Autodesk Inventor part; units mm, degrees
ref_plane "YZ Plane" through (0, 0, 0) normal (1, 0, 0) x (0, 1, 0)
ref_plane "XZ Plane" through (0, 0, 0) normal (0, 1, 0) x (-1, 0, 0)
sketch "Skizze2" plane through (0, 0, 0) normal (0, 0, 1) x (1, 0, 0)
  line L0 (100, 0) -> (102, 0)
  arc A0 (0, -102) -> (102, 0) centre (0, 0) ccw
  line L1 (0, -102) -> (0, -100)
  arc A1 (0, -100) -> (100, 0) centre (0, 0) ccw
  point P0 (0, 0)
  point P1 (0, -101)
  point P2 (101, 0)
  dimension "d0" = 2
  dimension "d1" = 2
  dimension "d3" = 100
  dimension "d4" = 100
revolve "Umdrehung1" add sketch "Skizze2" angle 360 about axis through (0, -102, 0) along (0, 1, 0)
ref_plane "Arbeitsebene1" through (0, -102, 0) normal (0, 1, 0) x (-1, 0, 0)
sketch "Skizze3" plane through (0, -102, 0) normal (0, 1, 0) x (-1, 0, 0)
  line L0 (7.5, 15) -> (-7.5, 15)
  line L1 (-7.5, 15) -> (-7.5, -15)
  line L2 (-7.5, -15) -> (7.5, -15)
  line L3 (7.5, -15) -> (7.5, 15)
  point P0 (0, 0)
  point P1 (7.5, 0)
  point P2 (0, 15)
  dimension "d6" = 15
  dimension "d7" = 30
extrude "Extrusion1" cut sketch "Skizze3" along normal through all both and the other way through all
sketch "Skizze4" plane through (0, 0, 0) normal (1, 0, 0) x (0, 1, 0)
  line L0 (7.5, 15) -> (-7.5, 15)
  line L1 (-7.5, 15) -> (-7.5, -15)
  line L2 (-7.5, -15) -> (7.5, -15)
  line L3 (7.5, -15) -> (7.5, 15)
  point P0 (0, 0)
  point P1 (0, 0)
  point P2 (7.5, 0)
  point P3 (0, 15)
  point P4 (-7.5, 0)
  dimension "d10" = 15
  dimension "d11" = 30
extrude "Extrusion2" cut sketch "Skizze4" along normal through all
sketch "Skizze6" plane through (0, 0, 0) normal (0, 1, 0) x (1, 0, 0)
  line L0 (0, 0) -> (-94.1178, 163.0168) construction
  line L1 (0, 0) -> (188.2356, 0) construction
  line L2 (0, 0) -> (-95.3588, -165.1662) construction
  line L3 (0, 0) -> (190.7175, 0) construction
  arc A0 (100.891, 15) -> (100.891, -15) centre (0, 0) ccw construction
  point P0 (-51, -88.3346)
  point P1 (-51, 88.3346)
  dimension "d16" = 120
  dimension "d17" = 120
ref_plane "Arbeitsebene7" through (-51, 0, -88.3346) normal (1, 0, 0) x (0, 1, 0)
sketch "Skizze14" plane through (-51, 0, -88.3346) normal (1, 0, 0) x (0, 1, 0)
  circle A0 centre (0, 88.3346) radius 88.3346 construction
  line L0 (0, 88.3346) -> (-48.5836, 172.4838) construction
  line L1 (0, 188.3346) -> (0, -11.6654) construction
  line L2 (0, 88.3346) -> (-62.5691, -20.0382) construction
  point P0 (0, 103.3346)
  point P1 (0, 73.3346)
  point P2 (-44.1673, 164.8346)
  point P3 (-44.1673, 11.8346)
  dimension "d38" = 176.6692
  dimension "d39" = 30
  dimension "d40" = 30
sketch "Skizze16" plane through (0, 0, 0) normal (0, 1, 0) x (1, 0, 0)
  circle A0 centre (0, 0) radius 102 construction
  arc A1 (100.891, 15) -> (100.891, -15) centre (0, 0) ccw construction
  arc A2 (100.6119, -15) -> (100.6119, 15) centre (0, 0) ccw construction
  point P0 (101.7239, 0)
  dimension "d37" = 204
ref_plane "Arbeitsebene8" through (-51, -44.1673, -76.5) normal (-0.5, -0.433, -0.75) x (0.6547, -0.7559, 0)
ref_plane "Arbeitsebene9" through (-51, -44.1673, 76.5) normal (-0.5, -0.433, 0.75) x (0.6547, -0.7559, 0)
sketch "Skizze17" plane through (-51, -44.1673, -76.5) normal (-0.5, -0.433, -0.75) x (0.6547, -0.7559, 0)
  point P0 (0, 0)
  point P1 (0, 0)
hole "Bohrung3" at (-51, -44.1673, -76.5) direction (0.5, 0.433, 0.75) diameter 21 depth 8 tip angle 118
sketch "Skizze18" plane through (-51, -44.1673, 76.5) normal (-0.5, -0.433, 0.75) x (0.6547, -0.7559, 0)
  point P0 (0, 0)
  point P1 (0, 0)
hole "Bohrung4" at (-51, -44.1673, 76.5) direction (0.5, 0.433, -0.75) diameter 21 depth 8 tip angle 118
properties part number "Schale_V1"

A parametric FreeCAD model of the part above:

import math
import FreeCAD as App
import Part
import Sketcher

V = App.Vector
Q = App.Units.Quantity

doc = App.newDocument("Part")
params = doc.addObject("Spreadsheet::Sheet", "Params")
for row, (alias, value) in enumerate([
    ("sketch1_radius", "100 mm"),
    ("sketch1_width", "2 mm"),
    ("revolution_angle", "360 deg"),
    ("sketch2_width", "15 mm"),
    ("sketch2_height", "30 mm"),
    ("sketch3_width", "15 mm"),
    ("sketch3_height", "30 mm"),
    ("sketch4_diameter", "21 mm"),
    ("hole_diameter", "21 mm"),
    ("hole_depth", "8 mm"),
    ("sketch5_diameter", "21 mm"),
    ("hole2_diameter", "21 mm"),
    ("hole2_depth", "8 mm"),
], start=1):
    params.set(f"A{row}", alias)
    params.set(f"B{row}", "=" + value)
    params.setAlias(f"B{row}", alias)

body = doc.addObject("PartDesign::Body", "Body")

# Sketch on XY plane
sketch1 = body.newObject("Sketcher::SketchObject", "Sketch")
sketch1.AttachmentSupport = (doc.getObject("XY_Plane"), [""])
sketch1.MapMode = "FlatFace"
sketch1.addGeometry([
    Part.LineSegment(V(102, 0, 0), V(100, 0, 0)),
    Part.ArcOfCircle(Part.Circle(V(0, 0, 0), V(0, 0, 1), 100), math.radians(-90), math.radians(0)),
    Part.LineSegment(V(0, -100, 0), V(0, -102, 0)),
    Part.ArcOfCircle(Part.Circle(V(0, 0, 0), V(0, 0, 1), 102), math.radians(-90), math.radians(0)),
], False)
sketch1.addConstraint([
    Sketcher.Constraint("Coincident", 0, 2, 1, 2),
    Sketcher.Constraint("Coincident", 1, 1, 2, 1),
    Sketcher.Constraint("Coincident", 2, 2, 3, 1),
    Sketcher.Constraint("Coincident", 3, 2, 0, 1),
    Sketcher.Constraint("Horizontal", 0),
    Sketcher.Constraint("Vertical", 2),
    Sketcher.Constraint("Coincident", 1, 3, -1, 1),
    Sketcher.Constraint("Coincident", 3, 3, -1, 1),
    Sketcher.Constraint("PointOnObject", 0, 2, -1),
    Sketcher.Constraint("PointOnObject", 1, 1, -2),
    Sketcher.Constraint("Radius", 1, Q("100 mm")),
    Sketcher.Constraint("DistanceX", 0, 2, 0, 1, Q("2 mm")),
])
sketch1.setExpression("Constraints[10]", "Params.sketch1_radius")
sketch1.setExpression("Constraints[11]", "Params.sketch1_width")
revolution = body.newObject("PartDesign::Revolution", "Revolution")
revolution.Profile = sketch1
revolution.ReferenceAxis = (sketch1, ["V_Axis"])
revolution.setExpression("Angle", "Params.revolution_angle")

# Sketch on XZ plane
sketch2 = body.newObject("Sketcher::SketchObject", "Sketch001")
sketch2.AttachmentSupport = (doc.getObject("XZ_Plane"), [""])
sketch2.MapMode = "FlatFace"
sketch2.AttachmentOffset = App.Placement(V(0, 0, 102), App.Rotation())
sketch2.addGeometry([
    Part.LineSegment(V(-8, -15, 0), V(-8, 15, 0)),
    Part.LineSegment(V(-8, 15, 0), V(8, 15, 0)),
    Part.LineSegment(V(8, 15, 0), V(8, -15, 0)),
    Part.LineSegment(V(8, -15, 0), V(-8, -15, 0)),
], False)
sketch2.addConstraint([
    Sketcher.Constraint("Coincident", 0, 2, 1, 1),
    Sketcher.Constraint("Coincident", 1, 2, 2, 1),
    Sketcher.Constraint("Coincident", 2, 2, 3, 1),
    Sketcher.Constraint("Coincident", 3, 2, 0, 1),
    Sketcher.Constraint("Vertical", 0),
    Sketcher.Constraint("Horizontal", 1),
    Sketcher.Constraint("Vertical", 2),
    Sketcher.Constraint("Horizontal", 3),
    Sketcher.Constraint("Symmetric", 0, 2, 2, 2, -1, 1),
    Sketcher.Constraint("DistanceX", 1, 1, 1, 2, Q("15 mm")),
    Sketcher.Constraint("DistanceY", 0, 1, 0, 2, Q("30 mm")),
])
sketch2.setExpression("Constraints[9]", "Params.sketch2_width")
sketch2.setExpression("Constraints[10]", "Params.sketch2_height")
pocket1 = body.newObject("PartDesign::Pocket", "Pocket")
pocket1.Profile = sketch2
pocket1.Type = "ThroughAll"

# Sketch on YZ plane
sketch3 = body.newObject("Sketcher::SketchObject", "Sketch002")
sketch3.AttachmentSupport = (doc.getObject("YZ_Plane"), [""])
sketch3.MapMode = "FlatFace"
sketch3.addGeometry([
    Part.LineSegment(V(8, -15, 0), V(8, 15, 0)),
    Part.LineSegment(V(8, 15, 0), V(-8, 15, 0)),
    Part.LineSegment(V(-8, 15, 0), V(-8, -15, 0)),
    Part.LineSegment(V(-8, -15, 0), V(8, -15, 0)),
], False)
sketch3.addConstraint([
    Sketcher.Constraint("Coincident", 0, 2, 1, 1),
    Sketcher.Constraint("Coincident", 1, 2, 2, 1),
    Sketcher.Constraint("Coincident", 2, 2, 3, 1),
    Sketcher.Constraint("Coincident", 3, 2, 0, 1),
    Sketcher.Constraint("Vertical", 0),
    Sketcher.Constraint("Horizontal", 1),
    Sketcher.Constraint("Vertical", 2),
    Sketcher.Constraint("Horizontal", 3),
    Sketcher.Constraint("Symmetric", 0, 2, 2, 2, -1, 1),
    Sketcher.Constraint("DistanceX", 1, 2, 1, 1, Q("15 mm")),
    Sketcher.Constraint("DistanceY", 0, 1, 0, 2, Q("30 mm")),
])
sketch3.setExpression("Constraints[9]", "Params.sketch3_width")
sketch3.setExpression("Constraints[10]", "Params.sketch3_height")
pocket2 = body.newObject("PartDesign::Pocket", "Pocket001")
pocket2.Profile = sketch3
pocket2.Type = "ThroughAll"
pocket2.Reversed = True

# Sketch on an angled plane
sketch4 = body.newObject("Sketcher::SketchObject", "Sketch003")
sketch4.Placement = App.Placement(V(-51.000281, -44.166244, -76.500422), App.Rotation(V(-0.832050294, 0, 0.554700196), V(-0.240186506, 0.901392776, -0.360279759), V(-0.50000275, -0.433002382, -0.750004125), "ZXY"))
sketch4.addGeometry(Part.Circle(V(0, 0, 0), V(0, 0, 1), 10), False)
sketch4.addConstraint([
    Sketcher.Constraint("PointOnObject", 0, 3, -2),
    Sketcher.Constraint("Diameter", 0, Q("21 mm")),
    Sketcher.Constraint("DistanceY", 0, 3, -1, 1, Q("0.0012 mm")),
])
sketch4.setExpression("Constraints[1]", "Params.sketch4_diameter")
doc.recompute()
hole = body.newObject("PartDesign::Hole", "Hole")
hole.Profile = sketch4
hole.ThreadType = "None"
hole.setExpression("Diameter", "Params.hole_diameter")
hole.DepthType = "Dimension"
hole.setExpression("Depth", "Params.hole_depth")
hole.DrillPoint = "Angled"
hole.DrillPointAngle = 118

# Sketch on an angled plane
sketch5 = body.newObject("Sketcher::SketchObject", "Sketch004")
sketch5.Placement = App.Placement(V(-51.000281, -44.166244, 76.500422), App.Rotation(V(0.832050294, 0, 0.554700196), V(-0.240186506, 0.901392776, 0.360279759), V(-0.50000275, -0.433002382, 0.750004125), "ZXY"))
sketch5.addGeometry(Part.Circle(V(0, 0, 0), V(0, 0, 1), 10), False)
sketch5.addConstraint([
    Sketcher.Constraint("PointOnObject", 0, 3, -2),
    Sketcher.Constraint("Diameter", 0, Q("21 mm")),
    Sketcher.Constraint("DistanceY", 0, 3, -1, 1, Q("0.0012 mm")),
])
sketch5.setExpression("Constraints[1]", "Params.sketch5_diameter")
doc.recompute()
hole2 = body.newObject("PartDesign::Hole", "Hole001")
hole2.Profile = sketch5
hole2.ThreadType = "None"
hole2.setExpression("Diameter", "Params.hole2_diameter")
hole2.DepthType = "Dimension"
hole2.setExpression("Depth", "Params.hole2_depth")
hole2.DrillPoint = "Angled"
hole2.DrillPointAngle = 118

doc.recompute()
